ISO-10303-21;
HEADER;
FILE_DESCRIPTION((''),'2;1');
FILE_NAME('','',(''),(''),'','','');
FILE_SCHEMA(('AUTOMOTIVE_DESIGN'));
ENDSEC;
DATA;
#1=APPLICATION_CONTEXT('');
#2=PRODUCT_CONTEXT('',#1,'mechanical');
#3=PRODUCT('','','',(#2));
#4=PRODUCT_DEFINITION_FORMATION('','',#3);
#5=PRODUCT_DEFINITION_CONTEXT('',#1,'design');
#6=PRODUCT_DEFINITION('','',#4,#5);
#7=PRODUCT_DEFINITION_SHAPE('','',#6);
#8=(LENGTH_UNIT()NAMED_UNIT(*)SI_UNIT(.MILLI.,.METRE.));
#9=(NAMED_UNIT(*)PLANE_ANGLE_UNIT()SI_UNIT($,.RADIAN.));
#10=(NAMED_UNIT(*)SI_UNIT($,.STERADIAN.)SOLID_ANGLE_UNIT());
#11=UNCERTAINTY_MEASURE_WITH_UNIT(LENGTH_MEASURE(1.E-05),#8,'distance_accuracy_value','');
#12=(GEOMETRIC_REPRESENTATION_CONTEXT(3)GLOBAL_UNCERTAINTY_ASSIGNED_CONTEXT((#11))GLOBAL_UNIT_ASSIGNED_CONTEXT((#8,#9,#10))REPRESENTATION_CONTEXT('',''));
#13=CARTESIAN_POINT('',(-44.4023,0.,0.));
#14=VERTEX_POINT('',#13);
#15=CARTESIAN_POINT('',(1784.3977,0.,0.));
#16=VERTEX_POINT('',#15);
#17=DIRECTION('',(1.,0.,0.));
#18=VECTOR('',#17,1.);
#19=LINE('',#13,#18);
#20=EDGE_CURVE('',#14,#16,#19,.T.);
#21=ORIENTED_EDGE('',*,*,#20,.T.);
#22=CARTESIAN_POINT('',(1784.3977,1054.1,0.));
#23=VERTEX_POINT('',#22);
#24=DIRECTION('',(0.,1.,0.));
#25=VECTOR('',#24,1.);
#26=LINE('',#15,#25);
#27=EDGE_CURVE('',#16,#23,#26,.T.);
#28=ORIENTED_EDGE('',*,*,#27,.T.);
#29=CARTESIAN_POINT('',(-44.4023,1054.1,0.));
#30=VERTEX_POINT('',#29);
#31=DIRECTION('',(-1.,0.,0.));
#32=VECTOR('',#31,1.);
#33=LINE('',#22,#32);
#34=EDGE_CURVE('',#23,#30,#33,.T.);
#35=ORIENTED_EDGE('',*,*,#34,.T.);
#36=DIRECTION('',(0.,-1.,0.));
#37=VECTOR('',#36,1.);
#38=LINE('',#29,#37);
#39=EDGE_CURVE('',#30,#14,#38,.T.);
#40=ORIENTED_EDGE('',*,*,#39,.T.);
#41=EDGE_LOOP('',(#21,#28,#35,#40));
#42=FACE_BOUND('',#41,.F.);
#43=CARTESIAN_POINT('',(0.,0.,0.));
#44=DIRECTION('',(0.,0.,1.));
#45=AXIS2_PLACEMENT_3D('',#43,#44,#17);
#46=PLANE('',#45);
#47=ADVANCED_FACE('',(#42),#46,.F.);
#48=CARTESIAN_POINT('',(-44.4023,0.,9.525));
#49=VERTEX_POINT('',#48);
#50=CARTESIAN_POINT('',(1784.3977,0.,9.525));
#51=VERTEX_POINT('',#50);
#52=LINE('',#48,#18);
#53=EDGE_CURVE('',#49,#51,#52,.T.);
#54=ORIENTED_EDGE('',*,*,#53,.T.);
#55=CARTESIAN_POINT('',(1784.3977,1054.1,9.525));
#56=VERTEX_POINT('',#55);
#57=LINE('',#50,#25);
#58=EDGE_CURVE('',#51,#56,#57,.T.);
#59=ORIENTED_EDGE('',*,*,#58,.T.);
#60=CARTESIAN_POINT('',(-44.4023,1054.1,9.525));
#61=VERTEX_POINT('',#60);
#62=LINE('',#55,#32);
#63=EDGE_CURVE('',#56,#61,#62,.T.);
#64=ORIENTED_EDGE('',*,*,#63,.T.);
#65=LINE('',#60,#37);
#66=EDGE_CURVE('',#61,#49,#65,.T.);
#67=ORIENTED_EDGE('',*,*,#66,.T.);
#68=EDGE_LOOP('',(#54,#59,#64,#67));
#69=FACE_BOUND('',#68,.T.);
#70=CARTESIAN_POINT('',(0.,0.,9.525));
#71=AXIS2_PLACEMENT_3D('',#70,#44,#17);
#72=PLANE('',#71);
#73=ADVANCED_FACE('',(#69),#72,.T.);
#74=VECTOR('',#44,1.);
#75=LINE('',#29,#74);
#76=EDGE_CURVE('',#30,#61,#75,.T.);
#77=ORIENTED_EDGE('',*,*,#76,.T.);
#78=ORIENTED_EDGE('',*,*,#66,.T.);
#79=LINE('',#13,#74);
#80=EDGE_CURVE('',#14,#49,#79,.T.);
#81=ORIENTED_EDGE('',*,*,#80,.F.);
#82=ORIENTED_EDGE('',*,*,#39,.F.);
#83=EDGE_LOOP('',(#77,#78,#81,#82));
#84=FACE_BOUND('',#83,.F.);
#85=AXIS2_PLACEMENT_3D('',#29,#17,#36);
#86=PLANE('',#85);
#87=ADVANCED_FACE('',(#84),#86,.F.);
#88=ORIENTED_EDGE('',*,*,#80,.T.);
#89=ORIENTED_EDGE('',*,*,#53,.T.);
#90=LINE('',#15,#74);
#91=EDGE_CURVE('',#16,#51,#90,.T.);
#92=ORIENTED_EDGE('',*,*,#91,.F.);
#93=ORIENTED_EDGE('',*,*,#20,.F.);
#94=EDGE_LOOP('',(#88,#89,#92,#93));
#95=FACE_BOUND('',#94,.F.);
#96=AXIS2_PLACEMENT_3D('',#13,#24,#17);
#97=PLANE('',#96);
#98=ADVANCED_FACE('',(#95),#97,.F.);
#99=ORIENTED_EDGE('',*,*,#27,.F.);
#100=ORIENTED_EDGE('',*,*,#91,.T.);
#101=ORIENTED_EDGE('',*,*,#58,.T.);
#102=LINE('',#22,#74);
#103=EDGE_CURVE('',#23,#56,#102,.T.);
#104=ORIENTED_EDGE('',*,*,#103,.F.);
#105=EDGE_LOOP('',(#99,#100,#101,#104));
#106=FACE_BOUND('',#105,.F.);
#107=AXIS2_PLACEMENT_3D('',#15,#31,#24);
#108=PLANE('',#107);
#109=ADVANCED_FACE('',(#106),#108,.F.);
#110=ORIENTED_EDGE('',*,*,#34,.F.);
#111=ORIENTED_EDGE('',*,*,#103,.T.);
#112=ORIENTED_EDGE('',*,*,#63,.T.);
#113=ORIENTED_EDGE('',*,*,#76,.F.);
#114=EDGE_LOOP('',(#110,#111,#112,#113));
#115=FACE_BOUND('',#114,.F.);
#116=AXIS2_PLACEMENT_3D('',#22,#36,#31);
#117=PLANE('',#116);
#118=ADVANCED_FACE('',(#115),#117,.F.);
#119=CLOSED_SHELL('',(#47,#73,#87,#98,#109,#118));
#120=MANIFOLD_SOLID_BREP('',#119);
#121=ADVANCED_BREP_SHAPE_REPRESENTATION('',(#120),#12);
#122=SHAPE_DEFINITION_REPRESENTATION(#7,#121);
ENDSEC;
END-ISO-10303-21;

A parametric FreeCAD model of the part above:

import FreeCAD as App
import Part
import Sketcher

V = App.Vector
Q = App.Units.Quantity

doc = App.newDocument("Part")
body = doc.addObject("PartDesign::Body", "Body")

# Sketch on XY plane
sketch1 = doc.addObject("Sketcher::SketchObject", "Sketch")
body.addObject(sketch1)
sketch1.AttachmentSupport = (doc.XY_Plane, [""])
sketch1.MapMode = "FlatFace"
sketch1.addGeometry([
    Part.LineSegment(V(-44, 1054, 0), V(-44, 0, 0)),
    Part.LineSegment(V(-44, 0, 0), V(1784, 0, 0)),
    Part.LineSegment(V(1784, 0, 0), V(1784, 1054, 0)),
    Part.LineSegment(V(1784, 1054, 0), V(-44, 1054, 0)),
], False)
sketch1.addConstraint([
    Sketcher.Constraint("Coincident", 0, 2, 1, 1),
    Sketcher.Constraint("Coincident", 1, 2, 2, 1),
    Sketcher.Constraint("Coincident", 2, 2, 3, 1),
    Sketcher.Constraint("Coincident", 3, 2, 0, 1),
    Sketcher.Constraint("Vertical", 0),
    Sketcher.Constraint("Horizontal", 1),
    Sketcher.Constraint("Vertical", 2),
    Sketcher.Constraint("Horizontal", 3),
    Sketcher.Constraint("PointOnObject", 0, 2, -1),
    Sketcher.Constraint("DistanceX", 1, 1, 1, 2, Q("72 in")),
    Sketcher.Constraint("DistanceY", 0, 2, 0, 1, Q("41.5 in")),
    Sketcher.Constraint("DistanceX", 0, 2, -1, 1, Q("44.4023 mm")),
])
pad1 = doc.addObject("PartDesign::Pad", "Pad")
body.addObject(pad1)
pad1.Profile = sketch1
pad1.Length = Q("0.375 in")

doc.recompute()
